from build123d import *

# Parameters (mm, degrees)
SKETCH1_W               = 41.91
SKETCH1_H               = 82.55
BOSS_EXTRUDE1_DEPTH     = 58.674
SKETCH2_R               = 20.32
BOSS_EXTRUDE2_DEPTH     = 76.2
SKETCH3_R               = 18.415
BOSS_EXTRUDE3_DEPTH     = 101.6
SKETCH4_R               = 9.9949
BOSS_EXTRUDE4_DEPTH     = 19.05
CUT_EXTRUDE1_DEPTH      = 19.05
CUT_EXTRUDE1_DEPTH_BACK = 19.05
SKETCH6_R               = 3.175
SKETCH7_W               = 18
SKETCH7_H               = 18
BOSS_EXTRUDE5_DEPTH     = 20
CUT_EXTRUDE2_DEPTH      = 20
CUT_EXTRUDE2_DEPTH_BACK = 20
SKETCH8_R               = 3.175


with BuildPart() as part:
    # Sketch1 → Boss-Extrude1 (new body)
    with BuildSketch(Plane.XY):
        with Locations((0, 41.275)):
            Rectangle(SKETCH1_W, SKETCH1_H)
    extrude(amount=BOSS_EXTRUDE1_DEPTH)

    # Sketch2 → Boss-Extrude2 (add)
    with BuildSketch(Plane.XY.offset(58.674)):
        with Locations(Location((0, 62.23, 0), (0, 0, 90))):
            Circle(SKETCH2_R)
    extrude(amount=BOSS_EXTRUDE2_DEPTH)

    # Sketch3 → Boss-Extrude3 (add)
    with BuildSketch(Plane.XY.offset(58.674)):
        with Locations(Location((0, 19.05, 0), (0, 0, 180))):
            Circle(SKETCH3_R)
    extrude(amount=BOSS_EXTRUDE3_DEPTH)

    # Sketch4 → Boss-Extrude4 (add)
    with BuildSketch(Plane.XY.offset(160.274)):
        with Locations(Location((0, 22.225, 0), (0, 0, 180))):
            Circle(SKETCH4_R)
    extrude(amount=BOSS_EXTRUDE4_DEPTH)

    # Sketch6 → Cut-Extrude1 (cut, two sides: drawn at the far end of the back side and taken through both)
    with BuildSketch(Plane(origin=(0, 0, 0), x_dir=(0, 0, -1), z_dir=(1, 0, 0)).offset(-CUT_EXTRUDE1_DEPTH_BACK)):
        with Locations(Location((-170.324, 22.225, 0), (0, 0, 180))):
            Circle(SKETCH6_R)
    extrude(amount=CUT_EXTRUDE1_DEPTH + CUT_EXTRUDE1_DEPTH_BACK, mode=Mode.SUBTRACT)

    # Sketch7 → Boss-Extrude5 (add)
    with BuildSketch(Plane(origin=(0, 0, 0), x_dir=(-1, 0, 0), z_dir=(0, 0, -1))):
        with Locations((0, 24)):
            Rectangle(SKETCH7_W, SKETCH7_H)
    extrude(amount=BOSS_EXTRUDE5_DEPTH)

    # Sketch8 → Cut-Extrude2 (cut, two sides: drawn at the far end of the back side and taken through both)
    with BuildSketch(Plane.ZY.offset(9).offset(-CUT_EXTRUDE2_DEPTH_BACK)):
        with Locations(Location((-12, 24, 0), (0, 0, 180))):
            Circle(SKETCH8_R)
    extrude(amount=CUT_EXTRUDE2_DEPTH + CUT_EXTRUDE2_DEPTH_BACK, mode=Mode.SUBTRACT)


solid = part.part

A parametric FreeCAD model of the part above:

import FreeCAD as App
import Part
import Sketcher

V = App.Vector
Q = App.Units.Quantity

doc = App.newDocument("Part")
body = doc.addObject("PartDesign::Body", "Body")

# Sketch on XY plane
sketch1 = body.newObject("Sketcher::SketchObject", "Sketch")
sketch1.AttachmentSupport = (doc.getObject("XY_Plane"), [""])
sketch1.MapMode = "FlatFace"
sketch1.addGeometry([
    Part.LineSegment(V(-20.955, 82.55, 0), V(-20.955, 0, 0)),
    Part.LineSegment(V(-20.955, 0, 0), V(20.955, 0, 0)),
    Part.LineSegment(V(20.955, 0, 0), V(20.955, 82.55, 0)),
    Part.LineSegment(V(20.955, 82.55, 0), V(-20.955, 82.55, 0)),
], False)
sketch1.addConstraint([
    Sketcher.Constraint("Coincident", 0, 2, 1, 1),
    Sketcher.Constraint("Coincident", 1, 2, 2, 1),
    Sketcher.Constraint("Coincident", 2, 2, 3, 1),
    Sketcher.Constraint("Coincident", 3, 2, 0, 1),
    Sketcher.Constraint("Vertical", 0),
    Sketcher.Constraint("Horizontal", 1),
    Sketcher.Constraint("Vertical", 2),
    Sketcher.Constraint("Horizontal", 3),
    Sketcher.Constraint("Symmetric", 0, 2, 1, 2, -1, 1),
    Sketcher.Constraint("DistanceX", 1, 1, 1, 2, Q("1.65 in")),
    Sketcher.Constraint("DistanceY", 0, 2, 0, 1, Q("3.25 in")),
])
pad1 = body.newObject("PartDesign::Pad", "Pad")
pad1.Profile = sketch1
pad1.Length = Q("2.31 in")

# Sketch on XY plane
sketch2 = body.newObject("Sketcher::SketchObject", "Sketch001")
sketch2.AttachmentSupport = (doc.getObject("XY_Plane"), [""])
sketch2.MapMode = "FlatFace"
sketch2.AttachmentOffset = App.Placement(V(0, 0, 2.31 * 25.4), App.Rotation())
sketch2.addGeometry(Part.Circle(V(0, 62.23, 0), V(0, 0, 1), 20.32), False)
sketch2.addConstraint([
    Sketcher.Constraint("PointOnObject", 0, 3, -2),
    Sketcher.Constraint("Diameter", 0, Q("1.6 in")),
    Sketcher.Constraint("DistanceY", -1, 1, 0, 3, Q("2.45 in")),
])
pad2 = body.newObject("PartDesign::Pad", "Pad001")
pad2.Profile = sketch2
pad2.Length = Q("3 in")

# Sketch on XY plane
sketch3 = body.newObject("Sketcher::SketchObject", "Sketch002")
sketch3.AttachmentSupport = (doc.getObject("XY_Plane"), [""])
sketch3.MapMode = "FlatFace"
sketch3.AttachmentOffset = App.Placement(V(0, 0, 2.31 * 25.4), App.Rotation())
sketch3.addGeometry(Part.Circle(V(0, 19.05, 0), V(0, 0, 1), 18.415), False)
sketch3.addConstraint([
    Sketcher.Constraint("PointOnObject", 0, 3, -2),
    Sketcher.Constraint("Diameter", 0, Q("1.45 in")),
    Sketcher.Constraint("DistanceY", -1, 1, 0, 3, Q("0.75 in")),
])
pad3 = body.newObject("PartDesign::Pad", "Pad002")
pad3.Profile = sketch3
pad3.Length = Q("4 in")

# Sketch on XY plane
sketch4 = body.newObject("Sketcher::SketchObject", "Sketch003")
sketch4.AttachmentSupport = (doc.getObject("XY_Plane"), [""])
sketch4.MapMode = "FlatFace"
sketch4.AttachmentOffset = App.Placement(V(0, 0, 6.31 * 25.4), App.Rotation())
sketch4.addGeometry(Part.Circle(V(0, 22.225, 0), V(0, 0, 1), 9.9949), False)
sketch4.addConstraint([
    Sketcher.Constraint("PointOnObject", 0, 3, -2),
    Sketcher.Constraint("Diameter", 0, Q("0.787 in")),
    Sketcher.Constraint("DistanceY", -1, 1, 0, 3, Q("0.875 in")),
])
pad4 = body.newObject("PartDesign::Pad", "Pad003")
pad4.Profile = sketch4
pad4.Length = Q("0.75 in")

# Sketch on YZ plane
sketch5 = body.newObject("Sketcher::SketchObject", "Sketch004")
sketch5.AttachmentSupport = (doc.getObject("YZ_Plane"), [""])
sketch5.MapMode = "FlatFace"
sketch5.addGeometry(Part.Circle(V(22.225, 170.324, 0), V(0, 0, 1), 3.175), False)
sketch5.addConstraint([
    Sketcher.Constraint("Diameter", 0, Q("0.25 in")),
    Sketcher.Constraint("DistanceX", -1, 1, 0, 3, Q("0.875 in")),
    Sketcher.Constraint("DistanceY", -1, 1, 0, 3, Q("170.324 mm")),
])
pocket1 = body.newObject("PartDesign::Pocket", "Pocket")
pocket1.Profile = sketch5
pocket1.Type = "ThroughAll"
pocket1.Midplane = True

# Sketch on XY plane
sketch6 = body.newObject("Sketcher::SketchObject", "Sketch005")
sketch6.AttachmentSupport = (doc.getObject("XY_Plane"), [""])
sketch6.MapMode = "FlatFace"
sketch6.addGeometry([
    Part.LineSegment(V(9, 33, 0), V(9, 15, 0)),
    Part.LineSegment(V(9, 15, 0), V(-9, 15, 0)),
    Part.LineSegment(V(-9, 15, 0), V(-9, 33, 0)),
    Part.LineSegment(V(-9, 33, 0), V(9, 33, 0)),
], False)
sketch6.addConstraint([
    Sketcher.Constraint("Coincident", 0, 2, 1, 1),
    Sketcher.Constraint("Coincident", 1, 2, 2, 1),
    Sketcher.Constraint("Coincident", 2, 2, 3, 1),
    Sketcher.Constraint("Coincident", 3, 2, 0, 1),
    Sketcher.Constraint("Vertical", 0),
    Sketcher.Constraint("Horizontal", 1),
    Sketcher.Constraint("Vertical", 2),
    Sketcher.Constraint("Horizontal", 3),
    Sketcher.Constraint("Equal", 3, 0),
    Sketcher.Constraint("DistanceX", 1, 2, 1, 1, Q("18 mm")),
    Sketcher.Constraint("DistanceX", -1, 1, 0, 2, Q("9 mm")),
    Sketcher.Constraint("DistanceY", -1, 1, 0, 2, Q("15 mm")),
])
pad5 = body.newObject("PartDesign::Pad", "Pad004")
pad5.Profile = sketch6
pad5.Length = 20
pad5.Reversed = True

# Sketch on YZ plane
sketch7 = body.newObject("Sketcher::SketchObject", "Sketch006")
sketch7.AttachmentSupport = (doc.getObject("YZ_Plane"), [""])
sketch7.MapMode = "FlatFace"
sketch7.AttachmentOffset = App.Placement(V(0, 0, -9), App.Rotation())
sketch7.addGeometry(Part.Circle(V(24, -12, 0), V(0, 0, 1), 3.175), False)
sketch7.addConstraint([
    Sketcher.Constraint("Diameter", 0, Q("0.25 in")),
    Sketcher.Constraint("DistanceX", -1, 1, 0, 3, Q("24 mm")),
    Sketcher.Constraint("DistanceY", 0, 3, -1, 1, Q("12 mm")),
])
pocket2 = body.newObject("PartDesign::Pocket", "Pocket001")
pocket2.Profile = sketch7
pocket2.Type = "ThroughAll"
pocket2.Midplane = True

doc.recompute()
